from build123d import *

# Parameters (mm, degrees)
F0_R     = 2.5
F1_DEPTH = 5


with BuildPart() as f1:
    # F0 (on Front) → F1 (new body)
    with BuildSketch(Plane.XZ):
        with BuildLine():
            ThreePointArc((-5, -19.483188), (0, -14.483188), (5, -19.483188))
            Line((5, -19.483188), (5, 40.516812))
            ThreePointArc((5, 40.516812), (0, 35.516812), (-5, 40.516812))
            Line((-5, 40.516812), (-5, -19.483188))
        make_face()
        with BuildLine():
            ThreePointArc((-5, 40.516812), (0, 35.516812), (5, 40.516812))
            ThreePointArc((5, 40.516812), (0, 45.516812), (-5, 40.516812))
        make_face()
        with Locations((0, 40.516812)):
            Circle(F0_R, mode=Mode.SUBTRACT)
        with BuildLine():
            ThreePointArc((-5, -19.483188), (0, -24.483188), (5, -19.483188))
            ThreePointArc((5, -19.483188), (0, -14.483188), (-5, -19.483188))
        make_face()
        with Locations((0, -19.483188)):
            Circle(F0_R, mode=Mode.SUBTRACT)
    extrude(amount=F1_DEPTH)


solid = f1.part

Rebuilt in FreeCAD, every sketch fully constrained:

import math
import FreeCAD as App
import Part
import Sketcher

V = App.Vector
Q = App.Units.Quantity

doc = App.newDocument("Part")
body = doc.addObject("PartDesign::Body", "Body")

# Sketch on XZ plane
sketch1 = body.newObject("Sketcher::SketchObject", "Sketch")
sketch1.AttachmentSupport = (doc.getObject("XZ_Plane"), [""])
sketch1.MapMode = "FlatFace"
sketch1.addGeometry([
    Part.LineSegment(V(-5, 40.5, 0), V(-5, -19.5, 0)),  # 0
    Part.ArcOfCircle(Part.Circle(V(0, -19.5, 0), V(0, 0, 1), 5), math.radians(180), math.radians(360)),  # 1
    Part.LineSegment(V(5, -19.5, 0), V(5, 40.5, 0)),  # 2
    Part.ArcOfCircle(Part.Circle(V(0, 40.5, 0), V(0, 0, 1), 5), math.radians(0), math.radians(180)),  # 3
    Part.Circle(V(0, -19.5, 0), V(0, 0, 1), 2.5),  # 4
    Part.Circle(V(0, 40.5, 0), V(0, 0, 1), 2.5),  # 5
], False)
sketch1.addConstraint([
    Sketcher.Constraint("Tangent", 0, 2, 1, 1),
    Sketcher.Constraint("Tangent", 1, 2, 2, 1),
    Sketcher.Constraint("Tangent", 2, 2, 3, 1),
    Sketcher.Constraint("Tangent", 3, 2, 0, 1),
    Sketcher.Constraint("Vertical", 0),
    Sketcher.Constraint("Vertical", 2),
    Sketcher.Constraint("Coincident", 4, 3, 1, 3),
    Sketcher.Constraint("Coincident", 5, 3, 3, 3),
    Sketcher.Constraint("Equal", 4, 5),
    Sketcher.Constraint("PointOnObject", 1, 3, -2),
    Sketcher.Constraint("Diameter", 4, Q("5 mm")),
    Sketcher.Constraint("Radius", 1, Q("5 mm")),
    Sketcher.Constraint("DistanceY", 0, 2, 0, 1, Q("60 mm")),
    Sketcher.Constraint("DistanceY", 1, 3, -1, 1, Q("19.483188 mm")),
])
pad1 = body.newObject("PartDesign::Pad", "Pad")
pad1.Profile = sketch1
pad1.Length = 5

doc.recompute()
